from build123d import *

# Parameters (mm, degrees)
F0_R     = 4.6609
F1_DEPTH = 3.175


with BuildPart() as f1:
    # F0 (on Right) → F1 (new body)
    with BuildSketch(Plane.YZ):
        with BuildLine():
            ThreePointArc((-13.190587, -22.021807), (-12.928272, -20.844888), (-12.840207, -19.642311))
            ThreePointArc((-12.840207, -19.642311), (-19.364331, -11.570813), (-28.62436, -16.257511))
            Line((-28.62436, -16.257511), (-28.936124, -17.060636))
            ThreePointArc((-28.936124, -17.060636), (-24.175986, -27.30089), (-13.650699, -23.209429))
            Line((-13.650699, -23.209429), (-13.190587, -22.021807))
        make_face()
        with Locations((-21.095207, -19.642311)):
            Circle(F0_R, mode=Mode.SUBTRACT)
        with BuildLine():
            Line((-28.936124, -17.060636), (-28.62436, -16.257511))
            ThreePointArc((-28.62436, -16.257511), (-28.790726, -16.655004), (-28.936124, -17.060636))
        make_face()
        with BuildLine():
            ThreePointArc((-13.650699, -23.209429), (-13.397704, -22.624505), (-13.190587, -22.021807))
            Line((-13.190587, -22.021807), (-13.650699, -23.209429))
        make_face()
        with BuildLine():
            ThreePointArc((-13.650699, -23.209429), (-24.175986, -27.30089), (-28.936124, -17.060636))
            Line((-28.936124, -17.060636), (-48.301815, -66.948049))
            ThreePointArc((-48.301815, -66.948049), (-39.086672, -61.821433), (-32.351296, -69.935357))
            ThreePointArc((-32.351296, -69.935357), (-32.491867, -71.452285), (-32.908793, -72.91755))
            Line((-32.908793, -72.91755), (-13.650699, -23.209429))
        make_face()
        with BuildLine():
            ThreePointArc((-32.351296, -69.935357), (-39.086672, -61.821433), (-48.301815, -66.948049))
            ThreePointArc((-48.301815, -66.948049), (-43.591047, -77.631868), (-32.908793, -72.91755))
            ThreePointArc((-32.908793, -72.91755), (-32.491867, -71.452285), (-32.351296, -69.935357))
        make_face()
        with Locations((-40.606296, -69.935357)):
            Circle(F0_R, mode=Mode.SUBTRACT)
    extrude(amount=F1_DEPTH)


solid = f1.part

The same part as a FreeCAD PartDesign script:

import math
import FreeCAD as App
import Part
import Sketcher
from FreeCAD import Vector
Q = App.Units.Quantity

doc = App.newDocument("Part")
body = doc.addObject("PartDesign::Body", "Body")

# Sketch on YZ plane
sketch1 = body.newObject("Sketcher::SketchObject", "Sketch")
sketch1.AttachmentSupport = (doc.getObject("YZ_Plane"), [""])
sketch1.MapMode = "FlatFace"
sketch1.addGeometry([
    Part.ArcOfCircle(Part.Circle(Vector(-21.095224, -19.642307, 0), Vector(0, 0, 1), 8.255017), math.radians(-16.753151), math.radians(-0.000027)),  # 0
    Part.ArcOfCircle(Part.Circle(Vector(-21.095207, -19.642312, 0), Vector(0, 0, 1), 8.255), math.radians(0.000005), math.radians(155.793257)),  # 1
    Part.ArcOfCircle(Part.Circle(Vector(-21.095011, -19.642393, 0), Vector(0, 0, 1), 8.255212), math.radians(155.793301), math.radians(161.775406)),  # 2
    Part.LineSegment(Vector(-28.936124, -17.060636, 0), Vector(-48.301815, -66.948049, 0)),  # 3
    Part.ArcOfCircle(Part.Circle(Vector(-40.606296, -69.935357, 0), Vector(0, 0, 1), 8.255), math.radians(158.784388), math.radians(338.822463)),  # 4
    Part.LineSegment(Vector(-32.908793, -72.91755, 0), Vector(-13.650699, -23.209429, 0)),  # 5
    Part.ArcOfCircle(Part.Circle(Vector(-21.095036, -19.642382, 0), Vector(0, 0, 1), 8.254815), math.radians(-25.601992), math.radians(-16.753029)),  # 6
    Part.Circle(Vector(-40.606296, -69.935357, 0), Vector(0, 0, 1), 4.6609),  # 7
    Part.Circle(Vector(-21.095207, -19.642311, 0), Vector(0, 0, 1), 4.6609),  # 8
], False)
sketch1.addConstraint([
    Sketcher.Constraint("Coincident", 0, 2, 1, 1),
    Sketcher.Constraint("Coincident", 1, 2, 2, 1),
    Sketcher.Constraint("Coincident", 2, 2, 3, 1),
    Sketcher.Constraint("Coincident", 3, 2, 4, 1),
    Sketcher.Constraint("Coincident", 4, 2, 5, 1),
    Sketcher.Constraint("Coincident", 5, 2, 6, 1),
    Sketcher.Constraint("Coincident", 6, 2, 0, 1),
    Sketcher.Constraint("Coincident", 7, 3, 4, 3),
    Sketcher.Constraint("Coincident", 8, 3, 1, 3),
    Sketcher.Constraint("Diameter", 7, Q("0.367 in")),
    Sketcher.Constraint("Diameter", 8, Q("0.367 in")),
    Sketcher.Constraint("Radius", 1, Q("0.325 in")),
    Sketcher.Constraint("Radius", 4, Q("0.325 in")),
    Sketcher.Constraint("Radius", 2, 8.255212),
    Sketcher.Constraint("Radius", 0, 8.255017),
    Sketcher.Constraint("Radius", 6, 8.254815),
    Sketcher.Constraint("DistanceX", 5, 2, -1, 1, 13.650699),
    Sketcher.Constraint("DistanceY", 8, 3, 1, 2, 3.3848),
    Sketcher.Constraint("DistanceX", 2, 2, 0, 3, 7.8409),
    Sketcher.Constraint("DistanceY", 4, 2, 3, 2, 5.969501),
    Sketcher.Constraint("Distance", 5, 53.308268),
    Sketcher.Constraint("DistanceY", 1, 3, -1, 1, 19.642312),
    Sketcher.Constraint("DistanceX", 2, 3, -1, 1, 21.095011),
    Sketcher.Constraint("DistanceY", 0, 2, -1, 1, 19.642311),
    Sketcher.Constraint("DistanceX", 1, 2, -1, 1, 28.62436),
    Sketcher.Constraint("DistanceY", 3, 2, -1, 1, 66.948049),
    Sketcher.Constraint("DistanceY", 5, 2, -1, 1, 23.209429),
    Sketcher.Constraint("DistanceX", 4, 3, 0, 3, 19.511072),
    Sketcher.Constraint("DistanceY", 4, 3, 0, 3, 50.29305),
    Sketcher.Constraint("DistanceX", 5, 2, 6, 2, 0.460112),
])
pad1 = body.newObject("PartDesign::Pad", "Pad")
pad1.Profile = sketch1
pad1.Length = Q("0.125 in")

doc.recompute()
